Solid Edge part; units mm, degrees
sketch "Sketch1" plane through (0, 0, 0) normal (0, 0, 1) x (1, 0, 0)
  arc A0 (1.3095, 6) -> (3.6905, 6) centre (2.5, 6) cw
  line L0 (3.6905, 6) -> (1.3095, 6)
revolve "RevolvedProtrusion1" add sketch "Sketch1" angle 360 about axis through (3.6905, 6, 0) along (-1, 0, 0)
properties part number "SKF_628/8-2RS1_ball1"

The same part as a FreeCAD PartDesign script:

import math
import FreeCAD as App
import Part
import Sketcher
from FreeCAD import Vector

doc = App.newDocument("Part")
body = doc.addObject("PartDesign::Body", "Body")

# Sketch on XY plane
sketch1 = doc.addObject("Sketcher::SketchObject", "Sketch")
body.addObject(sketch1)
sketch1.AttachmentSupport = (doc.XY_Plane, [""])
sketch1.MapMode = "FlatFace"
sketch1.addGeometry(Part.ArcOfCircle(Part.Circle(Vector(2.5, 6, 0), Vector(0, 0, 1), 1.1905), math.radians(0), math.radians(180)), False)
sketch1.addGeometry(Part.LineSegment(Vector(1.3095, 6, 0), Vector(3.6905, 6, 0)), False)
sketch1.addGeometry(Part.LineSegment(Vector(3.6905, 6, 0), Vector(1.3095, 6, 0)), True)  # axis
sketch1.addConstraint(Sketcher.Constraint("Coincident", 0, 1, 1, 2))
sketch1.addConstraint(Sketcher.Constraint("Coincident", 1, 1, 0, 2))
sketch1.addConstraint(Sketcher.Constraint("Horizontal", 1))
sketch1.addConstraint(Sketcher.Constraint("Horizontal", 2))
sketch1.addConstraint(Sketcher.Constraint("Coincident", 2, 1, 0, 1))
sketch1.addConstraint(Sketcher.Constraint("Equal", 1, 2))
sketch1.addConstraint(Sketcher.Constraint("DistanceY", -1, 1, 0, 3, 6.0))
sketch1.addConstraint(Sketcher.Constraint("DistanceY", -1, 1, 0, 1, 6.0))
sketch1.addConstraint(Sketcher.Constraint("DistanceX", -1, 1, 0, 3, 2.5))
sketch1.addConstraint(Sketcher.Constraint("Radius", 0, 1.1905))
revolution = doc.addObject("PartDesign::Revolution", "Revolution")
body.addObject(revolution)
revolution.Profile = sketch1
revolution.ReferenceAxis = (sketch1, ["Axis0"])
revolution.Angle = 360

doc.recompute()
